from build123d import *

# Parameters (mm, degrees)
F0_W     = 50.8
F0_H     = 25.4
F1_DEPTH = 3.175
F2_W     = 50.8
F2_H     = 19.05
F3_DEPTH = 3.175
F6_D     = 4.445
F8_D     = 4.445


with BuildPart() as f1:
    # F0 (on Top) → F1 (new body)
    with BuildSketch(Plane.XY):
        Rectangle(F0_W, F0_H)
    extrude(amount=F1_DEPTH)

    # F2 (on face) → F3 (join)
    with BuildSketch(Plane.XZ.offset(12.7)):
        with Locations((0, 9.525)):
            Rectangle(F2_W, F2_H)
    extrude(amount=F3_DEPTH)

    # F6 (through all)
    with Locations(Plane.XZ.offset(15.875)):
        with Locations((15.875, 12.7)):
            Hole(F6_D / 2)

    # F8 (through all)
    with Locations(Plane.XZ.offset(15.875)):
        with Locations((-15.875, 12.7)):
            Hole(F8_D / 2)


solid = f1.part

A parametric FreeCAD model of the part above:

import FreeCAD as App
import Part
import Sketcher
Q = App.Units.Quantity


def add_polygon(sketch, points):
    """Adds a closed chain of lines whose ends are joined by coincident constraints."""
    first, n = sketch.GeometryCount, len(points)
    for a, b in zip(points, points[1:] + points[:1]):
        sketch.addGeometry(Part.LineSegment(App.Vector(*a, 0), App.Vector(*b, 0)), False)
    for i in range(n):
        sketch.addConstraint(Sketcher.Constraint("Coincident", first + i, 2, first + (i + 1) % n, 1))

doc = App.newDocument("Part")
params = doc.addObject("Spreadsheet::Sheet", "Params")
for row, (alias, value) in enumerate([
    ("sketch1_width", "2 in"),
    ("sketch1_height", "1 in"),
    ("pad1_length", "0.125 in"),
    ("sketch2_width", "2 in"),
    ("sketch2_height", "0.75 in"),
    ("pad2_length", "0.125 in"),
    ("sketch3_diameter", "0.175 in"),
    ("hole_diameter", "0.175 in"),
    ("sketch4_diameter", "0.175 in"),
    ("hole2_diameter", "0.175 in"),
], start=1):
    params.set(f"A{row}", alias)
    params.set(f"B{row}", "=" + value)
    params.setAlias(f"B{row}", alias)

body = doc.addObject("PartDesign::Body", "Body")

sketch1 = body.newObject("Sketcher::SketchObject", "Sketch")
sketch1.AttachmentSupport = (doc.getObject("XY_Plane"), [""])
sketch1.MapMode = "FlatFace"
add_polygon(sketch1, [(-25, 13), (-25, -13), (25, -13), (25, 13)])
sketch1.addConstraint(Sketcher.Constraint("Vertical", 0))
sketch1.addConstraint(Sketcher.Constraint("Horizontal", 1))
sketch1.addConstraint(Sketcher.Constraint("Vertical", 2))
sketch1.addConstraint(Sketcher.Constraint("Horizontal", 3))
sketch1.addConstraint(Sketcher.Constraint("Symmetric", 0, 2, 2, 2, -1, 1))
sketch1.addConstraint(Sketcher.Constraint("DistanceX", 1, 1, 1, 2, Q("2 in")))
sketch1.addConstraint(Sketcher.Constraint("DistanceY", 0, 2, 0, 1, Q("1 in")))
sketch1.setExpression("Constraints[9]", "Params.sketch1_width")
sketch1.setExpression("Constraints[10]", "Params.sketch1_height")
pad1 = body.newObject("PartDesign::Pad", "Pad")
pad1.Profile = sketch1
pad1.setExpression("Length", "Params.pad1_length")

sketch2 = body.newObject("Sketcher::SketchObject", "Sketch001")
sketch2.AttachmentSupport = (doc.getObject("XZ_Plane"), [""])
sketch2.MapMode = "FlatFace"
sketch2.AttachmentOffset = App.Placement(App.Vector(0, 0, 0.5 * 25.4), App.Rotation())
add_polygon(sketch2, [(-25, 19), (-25, 0), (25, 0), (25, 19)])
sketch2.addConstraint(Sketcher.Constraint("Vertical", 0))
sketch2.addConstraint(Sketcher.Constraint("Horizontal", 1))
sketch2.addConstraint(Sketcher.Constraint("Vertical", 2))
sketch2.addConstraint(Sketcher.Constraint("Horizontal", 3))
sketch2.addConstraint(Sketcher.Constraint("Symmetric", 0, 2, 1, 2, -1, 1))
sketch2.addConstraint(Sketcher.Constraint("DistanceX", 1, 1, 1, 2, Q("2 in")))
sketch2.addConstraint(Sketcher.Constraint("DistanceY", 0, 2, 0, 1, Q("0.75 in")))
sketch2.setExpression("Constraints[9]", "Params.sketch2_width")
sketch2.setExpression("Constraints[10]", "Params.sketch2_height")
pad2 = body.newObject("PartDesign::Pad", "Pad001")
pad2.Profile = sketch2
pad2.setExpression("Length", "Params.pad2_length")

sketch3 = body.newObject("Sketcher::SketchObject", "Sketch002")
sketch3.AttachmentSupport = (doc.getObject("XZ_Plane"), [""])
sketch3.MapMode = "FlatFace"
sketch3.AttachmentOffset = App.Placement(App.Vector(0, 0, 0.625 * 25.4), App.Rotation())
sketch3.addGeometry(Part.Circle(App.Vector(15.9, 12.7, 0), App.Vector(0, 0, 1), 2.2), False)
sketch3.addConstraint(Sketcher.Constraint("Diameter", 0, Q("0.175 in")))
sketch3.addConstraint(Sketcher.Constraint("DistanceY", -1, 1, 0, 3, Q("0.5 in")))
sketch3.addConstraint(Sketcher.Constraint("DistanceX", -1, 1, 0, 3, Q("0.625 in")))
sketch3.setExpression("Constraints[0]", "Params.sketch3_diameter")
doc.recompute()
hole = body.newObject("PartDesign::Hole", "Hole")
hole.Profile = sketch3
hole.ThreadType = "None"
hole.setExpression("Diameter", "Params.hole_diameter")
hole.DepthType = "ThroughAll"

sketch4 = body.newObject("Sketcher::SketchObject", "Sketch003")
sketch4.AttachmentSupport = (doc.getObject("XZ_Plane"), [""])
sketch4.MapMode = "FlatFace"
sketch4.AttachmentOffset = App.Placement(App.Vector(0, 0, 0.625 * 25.4), App.Rotation())
sketch4.addGeometry(Part.Circle(App.Vector(-15.9, 12.7, 0), App.Vector(0, 0, 1), 2.2), False)
sketch4.addConstraint(Sketcher.Constraint("Diameter", 0, Q("0.175 in")))
sketch4.addConstraint(Sketcher.Constraint("DistanceY", -1, 1, 0, 3, Q("0.5 in")))
sketch4.addConstraint(Sketcher.Constraint("DistanceX", 0, 3, -1, 1, Q("0.625 in")))
sketch4.setExpression("Constraints[0]", "Params.sketch4_diameter")
doc.recompute()
hole2 = body.newObject("PartDesign::Hole", "Hole001")
hole2.Profile = sketch4
hole2.ThreadType = "None"
hole2.setExpression("Diameter", "Params.hole2_diameter")
hole2.DepthType = "ThroughAll"

doc.recompute()
